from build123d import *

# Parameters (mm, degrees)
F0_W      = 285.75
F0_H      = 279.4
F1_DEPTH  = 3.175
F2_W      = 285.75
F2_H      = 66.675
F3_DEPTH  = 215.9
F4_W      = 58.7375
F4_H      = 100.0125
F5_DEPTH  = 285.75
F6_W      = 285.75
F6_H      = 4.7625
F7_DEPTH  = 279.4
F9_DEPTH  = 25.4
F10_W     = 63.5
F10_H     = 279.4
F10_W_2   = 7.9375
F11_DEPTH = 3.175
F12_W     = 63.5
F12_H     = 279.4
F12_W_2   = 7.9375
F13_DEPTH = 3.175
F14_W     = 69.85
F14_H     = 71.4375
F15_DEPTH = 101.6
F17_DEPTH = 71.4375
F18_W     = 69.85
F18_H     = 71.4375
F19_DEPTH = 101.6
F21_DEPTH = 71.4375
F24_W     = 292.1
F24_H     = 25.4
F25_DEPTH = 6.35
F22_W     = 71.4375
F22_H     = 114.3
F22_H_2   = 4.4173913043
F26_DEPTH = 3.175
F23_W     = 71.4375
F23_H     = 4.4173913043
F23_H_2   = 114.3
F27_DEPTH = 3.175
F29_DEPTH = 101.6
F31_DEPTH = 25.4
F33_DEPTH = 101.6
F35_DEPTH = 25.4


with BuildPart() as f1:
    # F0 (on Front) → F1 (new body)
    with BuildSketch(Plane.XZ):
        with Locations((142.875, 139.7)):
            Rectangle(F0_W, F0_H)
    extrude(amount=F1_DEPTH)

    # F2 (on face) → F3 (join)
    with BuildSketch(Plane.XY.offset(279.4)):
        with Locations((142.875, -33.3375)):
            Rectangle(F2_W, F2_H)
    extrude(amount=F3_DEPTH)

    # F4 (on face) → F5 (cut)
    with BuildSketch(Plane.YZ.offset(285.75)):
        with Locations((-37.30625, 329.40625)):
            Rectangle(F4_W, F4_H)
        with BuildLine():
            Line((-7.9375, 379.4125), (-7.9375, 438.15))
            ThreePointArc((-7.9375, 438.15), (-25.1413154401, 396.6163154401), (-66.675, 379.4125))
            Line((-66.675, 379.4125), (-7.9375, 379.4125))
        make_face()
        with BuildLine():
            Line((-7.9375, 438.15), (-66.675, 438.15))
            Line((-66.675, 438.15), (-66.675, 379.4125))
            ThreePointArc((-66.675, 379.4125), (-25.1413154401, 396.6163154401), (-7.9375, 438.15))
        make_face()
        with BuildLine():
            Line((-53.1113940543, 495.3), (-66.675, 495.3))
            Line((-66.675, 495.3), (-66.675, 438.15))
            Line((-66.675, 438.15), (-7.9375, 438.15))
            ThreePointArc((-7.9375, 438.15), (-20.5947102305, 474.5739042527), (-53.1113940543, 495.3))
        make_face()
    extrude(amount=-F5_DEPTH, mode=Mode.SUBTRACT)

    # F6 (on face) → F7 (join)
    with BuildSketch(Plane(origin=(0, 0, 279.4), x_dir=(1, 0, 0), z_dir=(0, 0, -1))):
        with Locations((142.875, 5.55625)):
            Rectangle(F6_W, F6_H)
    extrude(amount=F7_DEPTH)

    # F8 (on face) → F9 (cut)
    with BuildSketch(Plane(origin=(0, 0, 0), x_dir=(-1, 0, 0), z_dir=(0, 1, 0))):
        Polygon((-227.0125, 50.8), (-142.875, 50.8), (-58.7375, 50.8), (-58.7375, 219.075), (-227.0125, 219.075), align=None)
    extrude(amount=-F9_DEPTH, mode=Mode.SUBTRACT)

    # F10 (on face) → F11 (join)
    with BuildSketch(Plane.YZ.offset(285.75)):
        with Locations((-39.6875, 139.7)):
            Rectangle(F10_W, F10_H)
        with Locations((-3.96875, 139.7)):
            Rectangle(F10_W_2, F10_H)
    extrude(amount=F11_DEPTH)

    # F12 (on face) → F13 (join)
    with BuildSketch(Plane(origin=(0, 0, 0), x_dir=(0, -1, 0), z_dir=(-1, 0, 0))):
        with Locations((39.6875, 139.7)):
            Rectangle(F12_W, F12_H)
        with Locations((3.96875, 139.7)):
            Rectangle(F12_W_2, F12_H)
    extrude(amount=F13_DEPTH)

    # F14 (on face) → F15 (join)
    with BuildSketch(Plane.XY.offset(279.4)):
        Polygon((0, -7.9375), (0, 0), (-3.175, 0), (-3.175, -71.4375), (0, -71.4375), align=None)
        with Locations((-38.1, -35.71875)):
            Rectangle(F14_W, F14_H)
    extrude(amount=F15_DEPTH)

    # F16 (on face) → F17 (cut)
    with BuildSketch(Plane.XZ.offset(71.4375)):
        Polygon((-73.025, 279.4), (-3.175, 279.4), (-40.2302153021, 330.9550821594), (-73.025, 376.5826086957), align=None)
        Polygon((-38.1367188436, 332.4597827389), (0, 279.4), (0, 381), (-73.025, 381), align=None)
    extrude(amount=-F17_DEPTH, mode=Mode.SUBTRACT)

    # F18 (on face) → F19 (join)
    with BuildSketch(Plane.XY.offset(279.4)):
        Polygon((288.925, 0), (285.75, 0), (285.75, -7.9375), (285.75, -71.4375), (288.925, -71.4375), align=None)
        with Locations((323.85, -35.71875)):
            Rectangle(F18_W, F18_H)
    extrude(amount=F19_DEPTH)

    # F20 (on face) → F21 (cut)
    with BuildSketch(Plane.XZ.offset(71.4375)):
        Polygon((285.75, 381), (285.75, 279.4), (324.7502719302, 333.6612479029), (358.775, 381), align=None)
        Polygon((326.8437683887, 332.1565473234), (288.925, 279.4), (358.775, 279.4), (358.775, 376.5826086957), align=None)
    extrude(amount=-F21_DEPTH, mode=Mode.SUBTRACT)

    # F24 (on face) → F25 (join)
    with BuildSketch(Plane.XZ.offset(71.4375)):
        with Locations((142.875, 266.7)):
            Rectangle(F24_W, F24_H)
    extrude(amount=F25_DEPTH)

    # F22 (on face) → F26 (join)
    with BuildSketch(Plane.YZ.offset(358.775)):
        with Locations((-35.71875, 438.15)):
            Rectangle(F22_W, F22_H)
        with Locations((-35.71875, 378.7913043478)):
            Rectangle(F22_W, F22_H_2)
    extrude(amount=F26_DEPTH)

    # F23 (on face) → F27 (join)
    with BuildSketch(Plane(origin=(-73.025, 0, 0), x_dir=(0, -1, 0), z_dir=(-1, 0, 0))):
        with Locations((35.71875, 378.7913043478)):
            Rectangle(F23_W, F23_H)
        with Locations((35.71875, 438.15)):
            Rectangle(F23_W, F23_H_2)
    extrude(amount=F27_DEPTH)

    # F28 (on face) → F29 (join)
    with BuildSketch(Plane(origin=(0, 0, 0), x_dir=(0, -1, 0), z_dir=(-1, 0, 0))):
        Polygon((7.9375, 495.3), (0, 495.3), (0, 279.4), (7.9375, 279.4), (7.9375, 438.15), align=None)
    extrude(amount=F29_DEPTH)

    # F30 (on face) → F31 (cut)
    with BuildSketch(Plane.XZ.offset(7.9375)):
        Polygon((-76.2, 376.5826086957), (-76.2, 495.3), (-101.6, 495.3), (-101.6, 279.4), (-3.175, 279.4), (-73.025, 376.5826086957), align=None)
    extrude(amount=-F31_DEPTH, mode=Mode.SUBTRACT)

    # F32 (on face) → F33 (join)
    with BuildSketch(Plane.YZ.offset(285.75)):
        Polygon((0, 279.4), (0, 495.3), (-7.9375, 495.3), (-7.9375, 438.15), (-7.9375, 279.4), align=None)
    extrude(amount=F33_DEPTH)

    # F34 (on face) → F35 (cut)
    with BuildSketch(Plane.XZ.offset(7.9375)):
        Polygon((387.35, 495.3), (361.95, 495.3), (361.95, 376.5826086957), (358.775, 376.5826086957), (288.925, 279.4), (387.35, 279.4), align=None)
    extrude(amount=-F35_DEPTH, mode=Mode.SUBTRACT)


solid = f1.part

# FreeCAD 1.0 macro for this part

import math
import FreeCAD as App
import Part
import Sketcher
from FreeCAD import Vector
Q = App.Units.Quantity

doc = App.newDocument("Part")
body = doc.addObject("PartDesign::Body", "Body")

# Sketch on XZ plane
sketch1 = body.newObject("Sketcher::SketchObject", "Sketch")
sketch1.AttachmentSupport = (doc.getObject("XZ_Plane"), [""])
sketch1.MapMode = "FlatFace"
sketch1.addGeometry([
    Part.LineSegment(Vector(0, 279, 0), Vector(0, 0, 0)),
    Part.LineSegment(Vector(0, 0, 0), Vector(286, 0, 0)),
    Part.LineSegment(Vector(286, 0, 0), Vector(286, 279, 0)),
    Part.LineSegment(Vector(286, 279, 0), Vector(0, 279, 0)),
], False)
sketch1.addConstraint([
    Sketcher.Constraint("Coincident", 0, 2, 1, 1),
    Sketcher.Constraint("Coincident", 1, 2, 2, 1),
    Sketcher.Constraint("Coincident", 2, 2, 3, 1),
    Sketcher.Constraint("Coincident", 3, 2, 0, 1),
    Sketcher.Constraint("Vertical", 0),
    Sketcher.Constraint("Horizontal", 1),
    Sketcher.Constraint("Vertical", 2),
    Sketcher.Constraint("Horizontal", 3),
    Sketcher.Constraint("Coincident", 0, 2, -1, 1),
    Sketcher.Constraint("DistanceY", 0, 2, 0, 1, Q("11 in")),
    Sketcher.Constraint("DistanceX", 1, 1, 1, 2, Q("11.25 in")),
])
pad1 = body.newObject("PartDesign::Pad", "Pad")
pad1.Profile = sketch1
pad1.Length = Q("0.125 in")

# Sketch on XY plane
sketch2 = body.newObject("Sketcher::SketchObject", "Sketch001")
sketch2.AttachmentSupport = (doc.getObject("XY_Plane"), [""])
sketch2.MapMode = "FlatFace"
sketch2.AttachmentOffset = App.Placement(Vector(0, 0, 11 * 25.4), App.Rotation())
sketch2.addGeometry([
    Part.LineSegment(Vector(0, 0, 0), Vector(0, -67, 0)),
    Part.LineSegment(Vector(0, -67, 0), Vector(286, -67, 0)),
    Part.LineSegment(Vector(286, -67, 0), Vector(286, 0, 0)),
    Part.LineSegment(Vector(286, 0, 0), Vector(0, 0, 0)),
], False)
sketch2.addConstraint([
    Sketcher.Constraint("Coincident", 0, 2, 1, 1),
    Sketcher.Constraint("Coincident", 1, 2, 2, 1),
    Sketcher.Constraint("Coincident", 2, 2, 3, 1),
    Sketcher.Constraint("Coincident", 3, 2, 0, 1),
    Sketcher.Constraint("Vertical", 0),
    Sketcher.Constraint("Horizontal", 1),
    Sketcher.Constraint("Vertical", 2),
    Sketcher.Constraint("Horizontal", 3),
    Sketcher.Constraint("Coincident", 3, 2, -1, 1),
    Sketcher.Constraint("DistanceX", 1, 1, 1, 2, Q("11.25 in")),
    Sketcher.Constraint("DistanceY", 0, 2, 0, 1, Q("2.625 in")),
])
pad2 = body.newObject("PartDesign::Pad", "Pad001")
pad2.Profile = sketch2
pad2.Length = Q("8.5 in")

# Sketch on YZ plane
sketch3 = body.newObject("Sketcher::SketchObject", "Sketch002")
sketch3.AttachmentSupport = (doc.getObject("YZ_Plane"), [""])
sketch3.MapMode = "FlatFace"
sketch3.AttachmentOffset = App.Placement(Vector(0, 0, 11.25 * 25.4), App.Rotation())
sketch3.addGeometry([
    Part.LineSegment(Vector(-67, 279, 0), Vector(-8, 279, 0)),  # 0
    Part.LineSegment(Vector(-8, 279, 0), Vector(-8, 438, 0)),  # 1
    Part.ArcOfCircle(Part.Circle(Vector(-67, 438, 0), Vector(0, 0, 1), 59), math.radians(0), math.radians(77)),  # 2
    Part.LineSegment(Vector(-53, 495, 0), Vector(-67, 495, 0)),  # 3
    Part.LineSegment(Vector(-67, 495, 0), Vector(-67, 279, 0)),  # 4
], False)
sketch3.addConstraint([
    Sketcher.Constraint("Coincident", 0, 2, 1, 1),
    Sketcher.Constraint("Tangent", 1, 2, 2, 1),
    Sketcher.Constraint("Coincident", 2, 2, 3, 1),
    Sketcher.Constraint("Coincident", 3, 2, 4, 1),
    Sketcher.Constraint("Coincident", 4, 2, 0, 1),
    Sketcher.Constraint("Horizontal", 0),
    Sketcher.Constraint("Vertical", 1),
    Sketcher.Constraint("Horizontal", 3),
    Sketcher.Constraint("Vertical", 4),
    Sketcher.Constraint("Vertical", 2, 3, 3, 2),
    Sketcher.Constraint("DistanceY", 4, 2, 4, 1, Q("8.5 in")),
    Sketcher.Constraint("DistanceY", -1, 1, 0, 2, Q("11 in")),
    Sketcher.Constraint("Radius", 2, Q("2.3125 in")),
    Sketcher.Constraint("DistanceY", 1, 1, 1, 2, Q("6.25 in")),
    Sketcher.Constraint("DistanceX", 2, 3, -1, 1, Q("2.625 in")),
])
pocket1 = body.newObject("PartDesign::Pocket", "Pocket")
pocket1.Profile = sketch3
pocket1.Length = Q("11.25 in")

# Sketch on XY plane
sketch4 = body.newObject("Sketcher::SketchObject", "Sketch003")
sketch4.AttachmentSupport = (doc.getObject("XY_Plane"), [""])
sketch4.MapMode = "FlatFace"
sketch4.AttachmentOffset = App.Placement(Vector(0, 0, 11 * 25.4), App.Rotation())
sketch4.addGeometry([
    Part.LineSegment(Vector(0, -7.9, 0), Vector(0, -3.2, 0)),
    Part.LineSegment(Vector(0, -3.2, 0), Vector(285.8, -3.2, 0)),
    Part.LineSegment(Vector(285.8, -3.2, 0), Vector(285.8, -7.9, 0)),
    Part.LineSegment(Vector(285.8, -7.9, 0), Vector(0, -7.9, 0)),
], False)
sketch4.addConstraint([
    Sketcher.Constraint("Coincident", 0, 2, 1, 1),
    Sketcher.Constraint("Coincident", 1, 2, 2, 1),
    Sketcher.Constraint("Coincident", 2, 2, 3, 1),
    Sketcher.Constraint("Coincident", 3, 2, 0, 1),
    Sketcher.Constraint("Vertical", 0),
    Sketcher.Constraint("Horizontal", 1),
    Sketcher.Constraint("Vertical", 2),
    Sketcher.Constraint("Horizontal", 3),
    Sketcher.Constraint("PointOnObject", 0, 2, -2),
    Sketcher.Constraint("DistanceX", 1, 1, 1, 2, Q("11.25 in")),
    Sketcher.Constraint("DistanceY", 0, 1, 0, 2, Q("0.1875 in")),
    Sketcher.Constraint("DistanceY", 0, 2, -1, 1, Q("0.125 in")),
])
pad3 = body.newObject("PartDesign::Pad", "Pad002")
pad3.Profile = sketch4
pad3.Length = Q("11 in")
pad3.Reversed = True

# Sketch on XZ plane
sketch5 = body.newObject("Sketcher::SketchObject", "Sketch004")
sketch5.AttachmentSupport = (doc.getObject("XZ_Plane"), [""])
sketch5.MapMode = "FlatFace"
sketch5.addGeometry([
    Part.LineSegment(Vector(227, 51, 0), Vector(59, 51, 0)),
    Part.LineSegment(Vector(59, 51, 0), Vector(59, 219, 0)),
    Part.LineSegment(Vector(59, 219, 0), Vector(227, 219, 0)),
    Part.LineSegment(Vector(227, 219, 0), Vector(227, 51, 0)),
], False)
sketch5.addConstraint([
    Sketcher.Constraint("Coincident", 0, 2, 1, 1),
    Sketcher.Constraint("Coincident", 1, 2, 2, 1),
    Sketcher.Constraint("Coincident", 2, 2, 3, 1),
    Sketcher.Constraint("Coincident", 3, 2, 0, 1),
    Sketcher.Constraint("Horizontal", 0),
    Sketcher.Constraint("Vertical", 1),
    Sketcher.Constraint("Horizontal", 2),
    Sketcher.Constraint("Vertical", 3),
    Sketcher.Constraint("Equal", 2, 1),
    Sketcher.Constraint("DistanceY", -1, 1, 0, 2, Q("2 in")),
    Sketcher.Constraint("DistanceX", 0, 2, 0, 1, Q("6.625 in")),
    Sketcher.Constraint("DistanceX", -1, 1, 0, 2, Q("2.3125 in")),
])
pocket2 = body.newObject("PartDesign::Pocket", "Pocket001")
pocket2.Profile = sketch5
pocket2.Length = Q("1 in")
pocket2.Reversed = True

# Sketch on YZ plane
sketch6 = body.newObject("Sketcher::SketchObject", "Sketch005")
sketch6.AttachmentSupport = (doc.getObject("YZ_Plane"), [""])
sketch6.MapMode = "FlatFace"
sketch6.AttachmentOffset = App.Placement(Vector(0, 0, 11.25 * 25.4), App.Rotation())
sketch6.addGeometry([
    Part.LineSegment(Vector(-71, 279, 0), Vector(-71, 0, 0)),
    Part.LineSegment(Vector(-71, 0, 0), Vector(0, 0, 0)),
    Part.LineSegment(Vector(0, 0, 0), Vector(0, 279, 0)),
    Part.LineSegment(Vector(0, 279, 0), Vector(-71, 279, 0)),
], False)
sketch6.addConstraint([
    Sketcher.Constraint("Coincident", 0, 2, 1, 1),
    Sketcher.Constraint("Coincident", 1, 2, 2, 1),
    Sketcher.Constraint("Coincident", 2, 2, 3, 1),
    Sketcher.Constraint("Coincident", 3, 2, 0, 1),
    Sketcher.Constraint("Vertical", 0),
    Sketcher.Constraint("Horizontal", 1),
    Sketcher.Constraint("Vertical", 2),
    Sketcher.Constraint("Horizontal", 3),
    Sketcher.Constraint("Coincident", 1, 2, -1, 1),
    Sketcher.Constraint("DistanceY", 0, 2, 0, 1, Q("11 in")),
    Sketcher.Constraint("DistanceX", 1, 1, 1, 2, Q("2.8125 in")),
])
pad4 = body.newObject("PartDesign::Pad", "Pad003")
pad4.Profile = sketch6
pad4.Length = Q("0.125 in")

# Sketch on YZ plane
sketch7 = body.newObject("Sketcher::SketchObject", "Sketch006")
sketch7.AttachmentSupport = (doc.getObject("YZ_Plane"), [""])
sketch7.MapMode = "FlatFace"
sketch7.addGeometry([
    Part.LineSegment(Vector(-71, 0, 0), Vector(-71, 279, 0)),
    Part.LineSegment(Vector(-71, 279, 0), Vector(0, 279, 0)),
    Part.LineSegment(Vector(0, 279, 0), Vector(0, 0, 0)),
    Part.LineSegment(Vector(0, 0, 0), Vector(-71, 0, 0)),
], False)
sketch7.addConstraint([
    Sketcher.Constraint("Coincident", 0, 2, 1, 1),
    Sketcher.Constraint("Coincident", 1, 2, 2, 1),
    Sketcher.Constraint("Coincident", 2, 2, 3, 1),
    Sketcher.Constraint("Coincident", 3, 2, 0, 1),
    Sketcher.Constraint("Vertical", 0),
    Sketcher.Constraint("Horizontal", 1),
    Sketcher.Constraint("Vertical", 2),
    Sketcher.Constraint("Horizontal", 3),
    Sketcher.Constraint("Coincident", 2, 2, -1, 1),
    Sketcher.Constraint("DistanceY", 0, 1, 0, 2, Q("11 in")),
    Sketcher.Constraint("DistanceX", 1, 1, 1, 2, Q("2.8125 in")),
])
pad5 = body.newObject("PartDesign::Pad", "Pad004")
pad5.Profile = sketch7
pad5.Length = Q("0.125 in")
pad5.Reversed = True

# Sketch on XY plane
sketch8 = body.newObject("Sketcher::SketchObject", "Sketch007")
sketch8.AttachmentSupport = (doc.getObject("XY_Plane"), [""])
sketch8.MapMode = "FlatFace"
sketch8.AttachmentOffset = App.Placement(Vector(0, 0, 11 * 25.4), App.Rotation())
sketch8.addGeometry([
    Part.LineSegment(Vector(0, 0, 0), Vector(-73, 0, 0)),
    Part.LineSegment(Vector(-73, 0, 0), Vector(-73, -71, 0)),
    Part.LineSegment(Vector(-73, -71, 0), Vector(0, -71, 0)),
    Part.LineSegment(Vector(0, -71, 0), Vector(0, 0, 0)),
], False)
sketch8.addConstraint([
    Sketcher.Constraint("Coincident", 0, 2, 1, 1),
    Sketcher.Constraint("Coincident", 1, 2, 2, 1),
    Sketcher.Constraint("Coincident", 2, 2, 3, 1),
    Sketcher.Constraint("Coincident", 3, 2, 0, 1),
    Sketcher.Constraint("Horizontal", 0),
    Sketcher.Constraint("Vertical", 1),
    Sketcher.Constraint("Horizontal", 2),
    Sketcher.Constraint("Vertical", 3),
    Sketcher.Constraint("Coincident", 3, 2, -1, 1),
    Sketcher.Constraint("DistanceX", 0, 2, 0, 1, Q("2.875 in")),
    Sketcher.Constraint("DistanceY", 1, 2, 1, 1, Q("2.8125 in")),
])
pad6 = body.newObject("PartDesign::Pad", "Pad005")
pad6.Profile = sketch8
pad6.Length = Q("4 in")

# Sketch on XZ plane
sketch9 = body.newObject("Sketcher::SketchObject", "Sketch008")
sketch9.AttachmentSupport = (doc.getObject("XZ_Plane"), [""])
sketch9.MapMode = "FlatFace"
sketch9.AttachmentOffset = App.Placement(Vector(0, 0, 2.8125 * 25.4), App.Rotation())
sketch9.addGeometry([
    Part.LineSegment(Vector(-73, 279, 0), Vector(-3, 279, 0)),  # 0
    Part.LineSegment(Vector(-3, 279, 0), Vector(-40, 331, 0)),  # 1
    Part.LineSegment(Vector(-40, 331, 0), Vector(-73, 377, 0)),  # 2
    Part.LineSegment(Vector(-73, 377, 0), Vector(-73, 279, 0)),  # 3
    Part.LineSegment(Vector(0, 279, 0), Vector(0, 381, 0)),  # 4
    Part.LineSegment(Vector(0, 381, 0), Vector(-73, 381, 0)),  # 5
    Part.LineSegment(Vector(-73, 381, 0), Vector(0, 279, 0)),  # 6
], False)
sketch9.addConstraint([
    Sketcher.Constraint("Coincident", 0, 2, 1, 1),
    Sketcher.Constraint("Coincident", 1, 2, 2, 1),
    Sketcher.Constraint("Coincident", 2, 2, 3, 1),
    Sketcher.Constraint("Coincident", 3, 2, 0, 1),
    Sketcher.Constraint("Coincident", 4, 2, 5, 1),
    Sketcher.Constraint("Coincident", 5, 2, 6, 1),
    Sketcher.Constraint("Coincident", 6, 2, 4, 1),
    Sketcher.Constraint("Horizontal", 0),
    Sketcher.Constraint("Vertical", 3),
    Sketcher.Constraint("Vertical", 4),
    Sketcher.Constraint("Horizontal", 5),
    Sketcher.Constraint("PointOnObject", 4, 2, -2),
    Sketcher.Constraint("Parallel", 1, 2),
    Sketcher.Constraint("Parallel", 2, 6),
    Sketcher.Constraint("Horizontal", 3, 2, 6, 2),
    Sketcher.Constraint("Vertical", 3, 2, 5, 2),
    Sketcher.Constraint("DistanceY", 4, 1, 4, 2, Q("4 in")),
    Sketcher.Constraint("DistanceY", -1, 1, 0, 2, Q("11 in")),
    Sketcher.Constraint("DistanceX", 0, 1, 0, 2, Q("2.75 in")),
    Sketcher.Constraint("DistanceX", 5, 2, 5, 1, Q("2.875 in")),
    Sketcher.Constraint("Distance", 1, Q("63.490279 mm")),
])
pocket3 = body.newObject("PartDesign::Pocket", "Pocket002")
pocket3.Profile = sketch9
pocket3.Length = Q("2.8125 in")

# Sketch on XY plane
sketch10 = body.newObject("Sketcher::SketchObject", "Sketch009")
sketch10.AttachmentSupport = (doc.getObject("XY_Plane"), [""])
sketch10.MapMode = "FlatFace"
sketch10.AttachmentOffset = App.Placement(Vector(0, 0, 11 * 25.4), App.Rotation())
sketch10.addGeometry([
    Part.LineSegment(Vector(286, 0, 0), Vector(286, -71, 0)),
    Part.LineSegment(Vector(286, -71, 0), Vector(359, -71, 0)),
    Part.LineSegment(Vector(359, -71, 0), Vector(359, 0, 0)),
    Part.LineSegment(Vector(359, 0, 0), Vector(286, 0, 0)),
], False)
sketch10.addConstraint([
    Sketcher.Constraint("Coincident", 0, 2, 1, 1),
    Sketcher.Constraint("Coincident", 1, 2, 2, 1),
    Sketcher.Constraint("Coincident", 2, 2, 3, 1),
    Sketcher.Constraint("Coincident", 3, 2, 0, 1),
    Sketcher.Constraint("Vertical", 0),
    Sketcher.Constraint("Horizontal", 1),
    Sketcher.Constraint("Vertical", 2),
    Sketcher.Constraint("Horizontal", 3),
    Sketcher.Constraint("PointOnObject", 2, 2, -1),
    Sketcher.Constraint("DistanceX", 1, 1, 1, 2, Q("2.875 in")),
    Sketcher.Constraint("DistanceY", 0, 2, 0, 1, Q("2.8125 in")),
    Sketcher.Constraint("DistanceX", -1, 1, 0, 2, Q("11.25 in")),
])
pad7 = body.newObject("PartDesign::Pad", "Pad006")
pad7.Profile = sketch10
pad7.Length = Q("4 in")

# Sketch on XZ plane
sketch11 = body.newObject("Sketcher::SketchObject", "Sketch010")
sketch11.AttachmentSupport = (doc.getObject("XZ_Plane"), [""])
sketch11.MapMode = "FlatFace"
sketch11.AttachmentOffset = App.Placement(Vector(0, 0, 2.8125 * 25.4), App.Rotation())
sketch11.addGeometry([
    Part.LineSegment(Vector(286, 381, 0), Vector(286, 279, 0)),  # 0
    Part.LineSegment(Vector(286, 279, 0), Vector(359, 381, 0)),  # 1
    Part.LineSegment(Vector(359, 381, 0), Vector(286, 381, 0)),  # 2
    Part.LineSegment(Vector(289, 279, 0), Vector(359, 279, 0)),  # 3
    Part.LineSegment(Vector(359, 279, 0), Vector(359, 377, 0)),  # 4
    Part.LineSegment(Vector(359, 377, 0), Vector(289, 279, 0)),  # 5
], False)
sketch11.addConstraint([
    Sketcher.Constraint("Coincident", 0, 2, 1, 1),
    Sketcher.Constraint("Coincident", 1, 2, 2, 1),
    Sketcher.Constraint("Coincident", 2, 2, 0, 1),
    Sketcher.Constraint("Coincident", 3, 2, 4, 1),
    Sketcher.Constraint("Coincident", 4, 2, 5, 1),
    Sketcher.Constraint("Coincident", 5, 2, 3, 1),
    Sketcher.Constraint("Vertical", 0),
    Sketcher.Constraint("Horizontal", 2),
    Sketcher.Constraint("Horizontal", 3),
    Sketcher.Constraint("Vertical", 4),
    Sketcher.Constraint("Parallel", 1, 5),
    Sketcher.Constraint("Horizontal", 0, 2, 3, 2),
    Sketcher.Constraint("Vertical", 1, 2, 3, 2),
    Sketcher.Constraint("DistanceY", 0, 2, 0, 1, Q("4 in")),
    Sketcher.Constraint("DistanceY", -1, 1, 0, 2, Q("11 in")),
    Sketcher.Constraint("DistanceX", 3, 1, 3, 2, Q("2.75 in")),
    Sketcher.Constraint("DistanceX", 2, 2, 2, 1, Q("2.875 in")),
    Sketcher.Constraint("DistanceX", -1, 1, 0, 2, Q("11.25 in")),
])
pocket4 = body.newObject("PartDesign::Pocket", "Pocket003")
pocket4.Profile = sketch11
pocket4.Length = Q("2.8125 in")

# Sketch on XZ plane
sketch12 = body.newObject("Sketcher::SketchObject", "Sketch011")
sketch12.AttachmentSupport = (doc.getObject("XZ_Plane"), [""])
sketch12.MapMode = "FlatFace"
sketch12.AttachmentOffset = App.Placement(Vector(0, 0, 2.8125 * 25.4), App.Rotation())
sketch12.addGeometry([
    Part.LineSegment(Vector(-3, 279, 0), Vector(-3, 254, 0)),
    Part.LineSegment(Vector(-3, 254, 0), Vector(289, 254, 0)),
    Part.LineSegment(Vector(289, 254, 0), Vector(289, 279, 0)),
    Part.LineSegment(Vector(289, 279, 0), Vector(-3, 279, 0)),
], False)
sketch12.addConstraint([
    Sketcher.Constraint("Coincident", 0, 2, 1, 1),
    Sketcher.Constraint("Coincident", 1, 2, 2, 1),
    Sketcher.Constraint("Coincident", 2, 2, 3, 1),
    Sketcher.Constraint("Coincident", 3, 2, 0, 1),
    Sketcher.Constraint("Vertical", 0),
    Sketcher.Constraint("Horizontal", 1),
    Sketcher.Constraint("Vertical", 2),
    Sketcher.Constraint("Horizontal", 3),
    Sketcher.Constraint("DistanceY", 0, 2, 0, 1, Q("1 in")),
    Sketcher.Constraint("DistanceX", 1, 1, 1, 2, Q("11.5 in")),
    Sketcher.Constraint("DistanceY", -1, 1, 0, 2, Q("10 in")),
    Sketcher.Constraint("DistanceX", 0, 2, -1, 1, Q("0.125 in")),
])
pad8 = body.newObject("PartDesign::Pad", "Pad007")
pad8.Profile = sketch12
pad8.Length = Q("0.25 in")

# Sketch on YZ plane
sketch13 = body.newObject("Sketcher::SketchObject", "Sketch012")
sketch13.AttachmentSupport = (doc.getObject("YZ_Plane"), [""])
sketch13.MapMode = "FlatFace"
sketch13.AttachmentOffset = App.Placement(Vector(0, 0, 14.125 * 25.4), App.Rotation())
sketch13.addGeometry([
    Part.LineSegment(Vector(-71, 495, 0), Vector(-71, 377, 0)),
    Part.LineSegment(Vector(-71, 377, 0), Vector(0, 377, 0)),
    Part.LineSegment(Vector(0, 377, 0), Vector(0, 495, 0)),
    Part.LineSegment(Vector(0, 495, 0), Vector(-71, 495, 0)),
], False)
sketch13.addConstraint([
    Sketcher.Constraint("Coincident", 0, 2, 1, 1),
    Sketcher.Constraint("Coincident", 1, 2, 2, 1),
    Sketcher.Constraint("Coincident", 2, 2, 3, 1),
    Sketcher.Constraint("Coincident", 3, 2, 0, 1),
    Sketcher.Constraint("Vertical", 0),
    Sketcher.Constraint("Horizontal", 1),
    Sketcher.Constraint("Vertical", 2),
    Sketcher.Constraint("Horizontal", 3),
    Sketcher.Constraint("PointOnObject", 1, 2, -2),
    Sketcher.Constraint("DistanceY", -1, 1, 2, 2, Q("19.5 in")),
    Sketcher.Constraint("DistanceX", 1, 1, 1, 2, Q("2.8125 in")),
    Sketcher.Constraint("DistanceY", 0, 2, 0, 1, Q("118.717391 mm")),
])
pad9 = body.newObject("PartDesign::Pad", "Pad008")
pad9.Profile = sketch13
pad9.Length = Q("0.125 in")

# Sketch on YZ plane
sketch14 = body.newObject("Sketcher::SketchObject", "Sketch013")
sketch14.AttachmentSupport = (doc.getObject("YZ_Plane"), [""])
sketch14.MapMode = "FlatFace"
sketch14.AttachmentOffset = App.Placement(Vector(0, 0, -2.875 * 25.4), App.Rotation())
sketch14.addGeometry([
    Part.LineSegment(Vector(0, 377, 0), Vector(-71, 377, 0)),
    Part.LineSegment(Vector(-71, 377, 0), Vector(-71, 495, 0)),
    Part.LineSegment(Vector(-71, 495, 0), Vector(0, 495, 0)),
    Part.LineSegment(Vector(0, 495, 0), Vector(0, 377, 0)),
], False)
sketch14.addConstraint([
    Sketcher.Constraint("Coincident", 0, 2, 1, 1),
    Sketcher.Constraint("Coincident", 1, 2, 2, 1),
    Sketcher.Constraint("Coincident", 2, 2, 3, 1),
    Sketcher.Constraint("Coincident", 3, 2, 0, 1),
    Sketcher.Constraint("Horizontal", 0),
    Sketcher.Constraint("Vertical", 1),
    Sketcher.Constraint("Horizontal", 2),
    Sketcher.Constraint("Vertical", 3),
    Sketcher.Constraint("PointOnObject", 2, 2, -2),
    Sketcher.Constraint("DistanceY", -1, 1, 1, 2, Q("19.5 in")),
    Sketcher.Constraint("DistanceX", 0, 2, 0, 1, Q("2.8125 in")),
    Sketcher.Constraint("DistanceY", 1, 1, 1, 2, Q("118.717391 mm")),
])
pad10 = body.newObject("PartDesign::Pad", "Pad009")
pad10.Profile = sketch14
pad10.Length = Q("0.125 in")
pad10.Reversed = True

# Sketch on YZ plane
sketch15 = body.newObject("Sketcher::SketchObject", "Sketch014")
sketch15.AttachmentSupport = (doc.getObject("YZ_Plane"), [""])
sketch15.MapMode = "FlatFace"
sketch15.addGeometry([
    Part.LineSegment(Vector(-8, 495, 0), Vector(0, 495, 0)),
    Part.LineSegment(Vector(0, 495, 0), Vector(0, 279, 0)),
    Part.LineSegment(Vector(0, 279, 0), Vector(-8, 279, 0)),
    Part.LineSegment(Vector(-8, 279, 0), Vector(-8, 495, 0)),
], False)
sketch15.addConstraint([
    Sketcher.Constraint("Coincident", 0, 2, 1, 1),
    Sketcher.Constraint("Coincident", 1, 2, 2, 1),
    Sketcher.Constraint("Coincident", 2, 2, 3, 1),
    Sketcher.Constraint("Coincident", 3, 2, 0, 1),
    Sketcher.Constraint("Horizontal", 0),
    Sketcher.Constraint("Vertical", 1),
    Sketcher.Constraint("Horizontal", 2),
    Sketcher.Constraint("Vertical", 3),
    Sketcher.Constraint("PointOnObject", 0, 2, -2),
    Sketcher.Constraint("DistanceY", 1, 2, 1, 1, Q("8.5 in")),
    Sketcher.Constraint("DistanceY", -1, 1, 1, 2, Q("11 in")),
    Sketcher.Constraint("DistanceX", 0, 1, 0, 2, Q("0.3125 in")),
])
pad11 = body.newObject("PartDesign::Pad", "Pad010")
pad11.Profile = sketch15
pad11.Length = Q("4 in")
pad11.Reversed = True

# Sketch on XZ plane
sketch16 = body.newObject("Sketcher::SketchObject", "Sketch015")
sketch16.AttachmentSupport = (doc.getObject("XZ_Plane"), [""])
sketch16.MapMode = "FlatFace"
sketch16.AttachmentOffset = App.Placement(Vector(0, 0, 0.3125 * 25.4), App.Rotation())
sketch16.addGeometry([
    Part.LineSegment(Vector(-76.2, 376.6, 0), Vector(-76.2, 495.3, 0)),  # 0
    Part.LineSegment(Vector(-76.2, 495.3, 0), Vector(-101.6, 495.3, 0)),  # 1
    Part.LineSegment(Vector(-101.6, 495.3, 0), Vector(-101.6, 279.4, 0)),  # 2
    Part.LineSegment(Vector(-101.6, 279.4, 0), Vector(-3.2, 279.4, 0)),  # 3
    Part.LineSegment(Vector(-3.2, 279.4, 0), Vector(-73, 376.6, 0)),  # 4
    Part.LineSegment(Vector(-73, 376.6, 0), Vector(-76.2, 376.6, 0)),  # 5
], False)
sketch16.addConstraint([
    Sketcher.Constraint("Coincident", 0, 2, 1, 1),
    Sketcher.Constraint("Coincident", 1, 2, 2, 1),
    Sketcher.Constraint("Coincident", 2, 2, 3, 1),
    Sketcher.Constraint("Coincident", 3, 2, 4, 1),
    Sketcher.Constraint("Coincident", 4, 2, 5, 1),
    Sketcher.Constraint("Coincident", 5, 2, 0, 1),
    Sketcher.Constraint("Vertical", 0),
    Sketcher.Constraint("Horizontal", 1),
    Sketcher.Constraint("Vertical", 2),
    Sketcher.Constraint("Horizontal", 3),
    Sketcher.Constraint("Horizontal", 5),
    Sketcher.Constraint("DistanceX", 1, 2, 1, 1, Q("1 in")),
    Sketcher.Constraint("DistanceY", 2, 2, 2, 1, Q("8.5 in")),
    Sketcher.Constraint("DistanceX", 0, 2, -1, 1, Q("3 in")),
    Sketcher.Constraint("DistanceY", -1, 1, 2, 2, Q("11 in")),
    Sketcher.Constraint("DistanceX", 3, 1, 3, 2, Q("3.875 in")),
    Sketcher.Constraint("DistanceX", 5, 2, 5, 1, Q("0.125 in")),
    Sketcher.Constraint("DistanceY", 0, 1, 0, 2, Q("118.717391 mm")),
])
pocket5 = body.newObject("PartDesign::Pocket", "Pocket004")
pocket5.Profile = sketch16
pocket5.Length = Q("1 in")

# Sketch on YZ plane
sketch17 = body.newObject("Sketcher::SketchObject", "Sketch016")
sketch17.AttachmentSupport = (doc.getObject("YZ_Plane"), [""])
sketch17.MapMode = "FlatFace"
sketch17.AttachmentOffset = App.Placement(Vector(0, 0, 11.25 * 25.4), App.Rotation())
sketch17.addGeometry([
    Part.LineSegment(Vector(0, 279, 0), Vector(0, 495, 0)),
    Part.LineSegment(Vector(0, 495, 0), Vector(-8, 495, 0)),
    Part.LineSegment(Vector(-8, 495, 0), Vector(-8, 279, 0)),
    Part.LineSegment(Vector(-8, 279, 0), Vector(0, 279, 0)),
], False)
sketch17.addConstraint([
    Sketcher.Constraint("Coincident", 0, 2, 1, 1),
    Sketcher.Constraint("Coincident", 1, 2, 2, 1),
    Sketcher.Constraint("Coincident", 2, 2, 3, 1),
    Sketcher.Constraint("Coincident", 3, 2, 0, 1),
    Sketcher.Constraint("Vertical", 0),
    Sketcher.Constraint("Horizontal", 1),
    Sketcher.Constraint("Vertical", 2),
    Sketcher.Constraint("Horizontal", 3),
    Sketcher.Constraint("PointOnObject", 0, 2, -2),
    Sketcher.Constraint("DistanceY", 0, 1, 0, 2, Q("8.5 in")),
    Sketcher.Constraint("DistanceY", -1, 1, 2, 2, Q("11 in")),
    Sketcher.Constraint("DistanceX", 1, 2, 1, 1, Q("0.3125 in")),
])
pad12 = body.newObject("PartDesign::Pad", "Pad011")
pad12.Profile = sketch17
pad12.Length = Q("4 in")

# Sketch on XZ plane
sketch18 = body.newObject("Sketcher::SketchObject", "Sketch017")
sketch18.AttachmentSupport = (doc.getObject("XZ_Plane"), [""])
sketch18.MapMode = "FlatFace"
sketch18.AttachmentOffset = App.Placement(Vector(0, 0, 0.3125 * 25.4), App.Rotation())
sketch18.addGeometry([
    Part.LineSegment(Vector(387.4, 495.3, 0), Vector(361.9, 495.3, 0)),  # 0
    Part.LineSegment(Vector(361.9, 495.3, 0), Vector(361.9, 376.6, 0)),  # 1
    Part.LineSegment(Vector(361.9, 376.6, 0), Vector(358.8, 376.6, 0)),  # 2
    Part.LineSegment(Vector(358.8, 376.6, 0), Vector(288.9, 279.4, 0)),  # 3
    Part.LineSegment(Vector(288.9, 279.4, 0), Vector(387.4, 279.4, 0)),  # 4
    Part.LineSegment(Vector(387.4, 279.4, 0), Vector(387.4, 495.3, 0)),  # 5
], False)
sketch18.addConstraint([
    Sketcher.Constraint("Coincident", 0, 2, 1, 1),
    Sketcher.Constraint("Coincident", 1, 2, 2, 1),
    Sketcher.Constraint("Coincident", 2, 2, 3, 1),
    Sketcher.Constraint("Coincident", 3, 2, 4, 1),
    Sketcher.Constraint("Coincident", 4, 2, 5, 1),
    Sketcher.Constraint("Coincident", 5, 2, 0, 1),
    Sketcher.Constraint("Horizontal", 0),
    Sketcher.Constraint("Vertical", 1),
    Sketcher.Constraint("Horizontal", 2),
    Sketcher.Constraint("Horizontal", 4),
    Sketcher.Constraint("Vertical", 5),
    Sketcher.Constraint("DistanceX", 0, 2, 0, 1, Q("1 in")),
    Sketcher.Constraint("DistanceY", 5, 1, 5, 2, Q("8.5 in")),
    Sketcher.Constraint("DistanceY", -1, 1, 3, 2, Q("11 in")),
    Sketcher.Constraint("DistanceX", 2, 2, 2, 1, Q("0.125 in")),
    Sketcher.Constraint("DistanceX", 4, 1, 4, 2, Q("3.875 in")),
    Sketcher.Constraint("DistanceX", -1, 1, 0, 2, Q("14.25 in")),
    Sketcher.Constraint("DistanceY", 1, 2, 1, 1, Q("118.717391 mm")),
])
pocket6 = body.newObject("PartDesign::Pocket", "Pocket005")
pocket6.Profile = sketch18
pocket6.Length = Q("1 in")

doc.recompute()
